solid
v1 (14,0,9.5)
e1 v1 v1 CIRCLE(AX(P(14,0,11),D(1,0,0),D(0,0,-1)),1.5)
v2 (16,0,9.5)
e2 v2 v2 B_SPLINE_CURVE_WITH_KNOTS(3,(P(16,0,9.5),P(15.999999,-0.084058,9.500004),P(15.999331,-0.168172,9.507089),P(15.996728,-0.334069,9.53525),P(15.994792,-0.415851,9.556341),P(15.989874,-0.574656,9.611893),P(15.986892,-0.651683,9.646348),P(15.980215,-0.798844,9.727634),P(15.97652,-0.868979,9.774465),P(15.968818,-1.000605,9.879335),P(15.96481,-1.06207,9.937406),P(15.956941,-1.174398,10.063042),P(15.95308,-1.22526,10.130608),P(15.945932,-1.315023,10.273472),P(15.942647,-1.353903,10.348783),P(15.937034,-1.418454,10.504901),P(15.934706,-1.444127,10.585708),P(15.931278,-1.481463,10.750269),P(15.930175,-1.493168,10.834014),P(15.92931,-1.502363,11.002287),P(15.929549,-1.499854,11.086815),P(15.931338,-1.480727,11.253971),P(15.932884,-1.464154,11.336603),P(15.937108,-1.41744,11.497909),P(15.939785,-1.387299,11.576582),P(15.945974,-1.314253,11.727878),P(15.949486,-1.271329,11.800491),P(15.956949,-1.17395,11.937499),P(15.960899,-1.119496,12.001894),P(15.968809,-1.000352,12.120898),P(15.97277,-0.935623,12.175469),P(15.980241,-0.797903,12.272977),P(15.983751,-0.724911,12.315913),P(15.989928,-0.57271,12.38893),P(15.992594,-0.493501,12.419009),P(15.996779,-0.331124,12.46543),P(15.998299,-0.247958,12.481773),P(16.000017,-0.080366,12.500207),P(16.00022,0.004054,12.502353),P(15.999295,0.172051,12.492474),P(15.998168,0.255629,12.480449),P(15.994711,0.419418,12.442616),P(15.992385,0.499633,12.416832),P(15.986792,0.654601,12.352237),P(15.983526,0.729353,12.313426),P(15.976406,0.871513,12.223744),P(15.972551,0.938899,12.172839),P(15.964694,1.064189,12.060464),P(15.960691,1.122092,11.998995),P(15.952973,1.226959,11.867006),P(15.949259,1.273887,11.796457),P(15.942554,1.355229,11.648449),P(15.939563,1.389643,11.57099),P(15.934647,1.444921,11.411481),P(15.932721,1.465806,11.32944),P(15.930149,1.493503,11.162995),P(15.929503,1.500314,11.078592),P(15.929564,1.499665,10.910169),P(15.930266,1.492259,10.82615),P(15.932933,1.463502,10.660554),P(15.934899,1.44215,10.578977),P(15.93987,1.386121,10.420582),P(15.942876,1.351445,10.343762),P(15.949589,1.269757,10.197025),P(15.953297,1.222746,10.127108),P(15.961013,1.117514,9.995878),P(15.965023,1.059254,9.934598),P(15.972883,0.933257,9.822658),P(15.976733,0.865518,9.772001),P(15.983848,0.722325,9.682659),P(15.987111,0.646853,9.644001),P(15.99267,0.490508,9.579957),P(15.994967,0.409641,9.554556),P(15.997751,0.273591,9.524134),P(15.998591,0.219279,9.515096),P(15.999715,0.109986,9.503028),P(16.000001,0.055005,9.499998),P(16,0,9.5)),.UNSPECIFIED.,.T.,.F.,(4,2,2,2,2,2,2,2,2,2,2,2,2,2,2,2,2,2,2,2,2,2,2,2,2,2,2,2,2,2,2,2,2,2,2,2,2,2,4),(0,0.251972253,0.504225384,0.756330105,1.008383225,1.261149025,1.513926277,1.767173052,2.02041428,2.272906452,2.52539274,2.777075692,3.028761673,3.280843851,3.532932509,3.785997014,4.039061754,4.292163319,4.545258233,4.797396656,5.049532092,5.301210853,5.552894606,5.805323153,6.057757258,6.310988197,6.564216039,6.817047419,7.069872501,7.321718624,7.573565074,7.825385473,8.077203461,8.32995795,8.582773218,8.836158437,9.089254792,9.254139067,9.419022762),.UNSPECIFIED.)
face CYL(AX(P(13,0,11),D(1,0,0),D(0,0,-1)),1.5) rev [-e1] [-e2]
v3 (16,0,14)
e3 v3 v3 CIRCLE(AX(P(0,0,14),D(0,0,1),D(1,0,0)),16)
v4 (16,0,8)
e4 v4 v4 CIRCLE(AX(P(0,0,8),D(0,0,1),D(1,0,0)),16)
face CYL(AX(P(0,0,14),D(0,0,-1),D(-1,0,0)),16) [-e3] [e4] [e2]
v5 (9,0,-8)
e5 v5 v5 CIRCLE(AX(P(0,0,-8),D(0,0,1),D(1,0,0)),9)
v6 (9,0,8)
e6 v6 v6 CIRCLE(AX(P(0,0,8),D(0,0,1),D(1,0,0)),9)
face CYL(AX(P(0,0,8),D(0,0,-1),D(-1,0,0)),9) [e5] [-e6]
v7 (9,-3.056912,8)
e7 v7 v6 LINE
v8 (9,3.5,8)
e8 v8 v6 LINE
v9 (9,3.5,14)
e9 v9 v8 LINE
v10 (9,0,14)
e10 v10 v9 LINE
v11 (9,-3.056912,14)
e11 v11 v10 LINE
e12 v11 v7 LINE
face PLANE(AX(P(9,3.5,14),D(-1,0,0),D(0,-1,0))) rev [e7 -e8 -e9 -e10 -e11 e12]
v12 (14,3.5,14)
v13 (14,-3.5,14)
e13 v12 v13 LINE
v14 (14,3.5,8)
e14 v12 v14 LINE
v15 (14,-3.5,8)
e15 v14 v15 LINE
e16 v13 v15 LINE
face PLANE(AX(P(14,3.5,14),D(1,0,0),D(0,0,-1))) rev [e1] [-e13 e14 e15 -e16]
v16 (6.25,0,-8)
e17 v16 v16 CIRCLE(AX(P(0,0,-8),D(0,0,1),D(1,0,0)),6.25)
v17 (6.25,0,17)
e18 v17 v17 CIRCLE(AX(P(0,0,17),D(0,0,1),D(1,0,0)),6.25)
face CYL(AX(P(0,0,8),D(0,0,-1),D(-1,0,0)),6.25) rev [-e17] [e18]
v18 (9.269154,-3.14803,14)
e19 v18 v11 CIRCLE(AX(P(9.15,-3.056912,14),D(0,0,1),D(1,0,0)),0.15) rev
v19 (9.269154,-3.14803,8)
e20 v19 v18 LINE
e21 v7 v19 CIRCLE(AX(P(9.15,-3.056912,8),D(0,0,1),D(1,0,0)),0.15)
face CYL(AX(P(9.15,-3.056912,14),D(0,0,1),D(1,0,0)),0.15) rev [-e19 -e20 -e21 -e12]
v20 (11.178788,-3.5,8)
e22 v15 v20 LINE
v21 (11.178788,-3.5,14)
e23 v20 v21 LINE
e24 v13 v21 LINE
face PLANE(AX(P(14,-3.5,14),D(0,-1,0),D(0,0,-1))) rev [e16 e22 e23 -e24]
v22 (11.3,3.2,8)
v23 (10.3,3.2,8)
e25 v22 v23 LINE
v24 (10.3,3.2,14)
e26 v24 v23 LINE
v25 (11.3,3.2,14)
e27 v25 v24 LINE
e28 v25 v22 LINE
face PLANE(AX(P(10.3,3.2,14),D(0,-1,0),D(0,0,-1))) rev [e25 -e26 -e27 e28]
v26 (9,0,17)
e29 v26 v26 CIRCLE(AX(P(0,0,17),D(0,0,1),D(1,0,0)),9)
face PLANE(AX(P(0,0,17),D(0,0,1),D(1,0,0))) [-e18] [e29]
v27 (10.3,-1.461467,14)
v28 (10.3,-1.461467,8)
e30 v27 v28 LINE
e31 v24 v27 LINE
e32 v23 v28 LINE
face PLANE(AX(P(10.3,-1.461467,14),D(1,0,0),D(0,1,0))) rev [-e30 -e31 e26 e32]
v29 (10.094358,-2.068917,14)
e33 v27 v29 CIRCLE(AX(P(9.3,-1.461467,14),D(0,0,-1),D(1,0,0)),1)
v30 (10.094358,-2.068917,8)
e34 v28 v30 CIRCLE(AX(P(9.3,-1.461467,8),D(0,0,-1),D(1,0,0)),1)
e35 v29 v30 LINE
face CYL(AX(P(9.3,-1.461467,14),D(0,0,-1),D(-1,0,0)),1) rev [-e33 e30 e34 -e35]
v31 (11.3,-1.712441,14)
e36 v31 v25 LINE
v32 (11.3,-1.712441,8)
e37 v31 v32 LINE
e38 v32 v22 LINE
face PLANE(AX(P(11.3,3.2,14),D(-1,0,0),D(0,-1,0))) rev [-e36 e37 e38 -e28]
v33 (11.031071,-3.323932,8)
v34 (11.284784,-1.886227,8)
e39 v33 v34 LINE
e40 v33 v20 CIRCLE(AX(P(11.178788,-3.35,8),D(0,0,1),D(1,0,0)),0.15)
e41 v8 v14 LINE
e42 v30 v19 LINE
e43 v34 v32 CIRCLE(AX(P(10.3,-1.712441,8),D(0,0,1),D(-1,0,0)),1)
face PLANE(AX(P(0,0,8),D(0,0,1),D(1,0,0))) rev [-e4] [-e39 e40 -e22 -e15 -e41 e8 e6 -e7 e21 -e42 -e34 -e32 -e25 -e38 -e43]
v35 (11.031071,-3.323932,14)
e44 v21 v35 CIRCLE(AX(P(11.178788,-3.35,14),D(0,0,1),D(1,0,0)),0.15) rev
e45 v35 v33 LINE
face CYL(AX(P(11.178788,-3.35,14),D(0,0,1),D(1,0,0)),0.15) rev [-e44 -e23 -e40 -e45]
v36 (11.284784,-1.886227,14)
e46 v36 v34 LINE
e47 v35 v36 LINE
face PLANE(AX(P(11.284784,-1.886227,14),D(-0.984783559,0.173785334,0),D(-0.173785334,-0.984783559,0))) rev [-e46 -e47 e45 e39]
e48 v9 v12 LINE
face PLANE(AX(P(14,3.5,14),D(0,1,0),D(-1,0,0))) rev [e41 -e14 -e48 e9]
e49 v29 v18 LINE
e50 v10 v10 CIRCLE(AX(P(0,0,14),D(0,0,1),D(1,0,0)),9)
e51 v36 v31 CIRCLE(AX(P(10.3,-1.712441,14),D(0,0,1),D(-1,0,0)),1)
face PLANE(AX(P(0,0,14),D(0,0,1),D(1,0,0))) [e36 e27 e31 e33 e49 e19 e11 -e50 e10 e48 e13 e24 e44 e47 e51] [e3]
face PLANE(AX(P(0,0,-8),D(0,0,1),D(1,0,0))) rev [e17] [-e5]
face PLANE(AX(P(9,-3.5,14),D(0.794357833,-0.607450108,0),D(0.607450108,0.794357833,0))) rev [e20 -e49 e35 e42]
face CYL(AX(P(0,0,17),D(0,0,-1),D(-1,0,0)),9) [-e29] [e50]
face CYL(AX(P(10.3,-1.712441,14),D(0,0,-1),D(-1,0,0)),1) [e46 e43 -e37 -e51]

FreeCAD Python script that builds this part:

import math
import FreeCAD as App
import Part
import Sketcher


def edges_at(feature, points):
    """Names of the edges that pass closest to the given points."""
    edges = feature.Shape.Edges
    near = lambda p: min(range(len(edges)), key=lambda i: edges[i].distToShape(Part.Vertex(*p))[0])
    return sorted({f"Edge{near(p) + 1}" for p in points})

doc = App.newDocument("Part")
params = doc.addObject("Spreadsheet::Sheet", "Params")
for row, (alias, value) in enumerate([
    ("sketch1_diameter", "18 mm"),
    ("sketch1_diameter2", "12.5 mm"),
    ("pad1_length", "16 mm"),
    ("sketch2_diameter", "32 mm"),
    ("sketch2_diameter2", "12.5 mm"),
    ("pad2_length", "6 mm"),
    ("sketch3_radius", "1 mm"),
    ("sketch3_width", "5 mm"),
    ("sketch3_width2", "3 mm"),
    ("sketch3_height", "7 mm"),
    ("pocket1_length", "6 mm"),
    ("sketch4_diameter", "3 mm"),
    ("pocket2_length", "4 mm"),
    ("sketch5_diameter", "18 mm"),
    ("sketch5_diameter2", "12.5 mm"),
    ("pad3_length", "3 mm"),
    ("fillet_radius", "0.15 mm"),
    ("fillet2_radius", "0.15 mm"),
], start=1):
    params.set(f"A{row}", alias)
    params.set(f"B{row}", "=" + value)
    params.setAlias(f"B{row}", alias)

body = doc.addObject("PartDesign::Body", "Body")

sketch1 = body.newObject("Sketcher::SketchObject", "Sketch")
sketch1.AttachmentSupport = (doc.getObject("XY_Plane"), [""])
sketch1.MapMode = "FlatFace"
sketch1.addGeometry([
    Part.Circle(App.Vector(0, 0, 0), App.Vector(0, 0, 1), 9),
    Part.Circle(App.Vector(0, 0, 0), App.Vector(0, 0, 1), 6.25),
], False)
sketch1.addConstraint([
    Sketcher.Constraint("Coincident", 0, 3, -1, 1),
    Sketcher.Constraint("Coincident", 1, 3, -1, 1),
    Sketcher.Constraint("Diameter", 0, 18.0),
    Sketcher.Constraint("Diameter", 1, 12.5),
])
sketch1.setExpression("Constraints[2]", "Params.sketch1_diameter")
sketch1.setExpression("Constraints[3]", "Params.sketch1_diameter2")
pad1 = body.newObject("PartDesign::Pad", "Pad")
pad1.Profile = sketch1
pad1.setExpression("Length", "Params.pad1_length")
pad1.Midplane = True

sketch2 = body.newObject("Sketcher::SketchObject", "Sketch001")
sketch2.AttachmentSupport = (doc.getObject("XY_Plane"), [""])
sketch2.MapMode = "FlatFace"
sketch2.AttachmentOffset = App.Placement(App.Vector(0, 0, 8), App.Rotation())
sketch2.addGeometry([
    Part.Circle(App.Vector(0, 0, 0), App.Vector(0, 0, 1), 16),
    Part.Circle(App.Vector(0, 0, 0), App.Vector(0, 0, 1), 6.25),
], False)
sketch2.addConstraint([
    Sketcher.Constraint("Coincident", 0, 3, -1, 1),
    Sketcher.Constraint("Coincident", 1, 3, -1, 1),
    Sketcher.Constraint("Diameter", 0, 32.0),
    Sketcher.Constraint("Diameter", 1, 12.5),
])
sketch2.setExpression("Constraints[2]", "Params.sketch2_diameter")
sketch2.setExpression("Constraints[3]", "Params.sketch2_diameter2")
pad2 = body.newObject("PartDesign::Pad", "Pad001")
pad2.Profile = sketch2
pad2.setExpression("Length", "Params.pad2_length")

sketch3 = body.newObject("Sketcher::SketchObject", "Sketch002")
sketch3.AttachmentSupport = (doc.getObject("XY_Plane"), [""])
sketch3.MapMode = "FlatFace"
sketch3.AttachmentOffset = App.Placement(App.Vector(0, 0, 8), App.Rotation())
sketch3.addGeometry([
    Part.LineSegment(App.Vector(10.094358, -2.068917, 0), App.Vector(9, -3.5, 0)),
    Part.LineSegment(App.Vector(9, -3.5, 0), App.Vector(9, 3.5, 0)),
    Part.LineSegment(App.Vector(9, 3.5, 0), App.Vector(14, 3.5, 0)),
    Part.LineSegment(App.Vector(14, 3.5, 0), App.Vector(14, -3.5, 0)),
    Part.LineSegment(App.Vector(14, -3.5, 0), App.Vector(11, -3.5, 0)),
    Part.LineSegment(App.Vector(11, -3.5, 0), App.Vector(11.284784, -1.886227, 0)),
    Part.ArcOfCircle(Part.Circle(App.Vector(10.3, -1.712441, 0), App.Vector(0, 0, 1), 1), math.radians(-10.007979), math.radians(-0.000001)),
    Part.LineSegment(App.Vector(11.3, -1.712441, 0), App.Vector(11.3, 3.2, 0)),
    Part.LineSegment(App.Vector(11.3, 3.2, 0), App.Vector(10.3, 3.2, 0)),
    Part.LineSegment(App.Vector(10.3, 3.2, 0), App.Vector(10.3, -1.461467, 0)),
    Part.ArcOfCircle(Part.Circle(App.Vector(9.3, -1.461467, 0), App.Vector(0, 0, 1), 1), math.radians(-37.405357), math.radians(0)),
], False)
sketch3.addConstraint([
    Sketcher.Constraint("Coincident", 0, 2, 1, 1),
    Sketcher.Constraint("Coincident", 1, 2, 2, 1),
    Sketcher.Constraint("Coincident", 2, 2, 3, 1),
    Sketcher.Constraint("Coincident", 3, 2, 4, 1),
    Sketcher.Constraint("Coincident", 4, 2, 5, 1),
    Sketcher.Constraint("Tangent", 5, 2, 6, 1),
    Sketcher.Constraint("Tangent", 6, 2, 7, 1),
    Sketcher.Constraint("Coincident", 7, 2, 8, 1),
    Sketcher.Constraint("Coincident", 8, 2, 9, 1),
    Sketcher.Constraint("Tangent", 9, 2, 10, 2),
    Sketcher.Constraint("Tangent", 10, 1, 0, 1),
    Sketcher.Constraint("Vertical", 1),
    Sketcher.Constraint("Horizontal", 2),
    Sketcher.Constraint("Vertical", 3),
    Sketcher.Constraint("Horizontal", 4),
    Sketcher.Constraint("Vertical", 7),
    Sketcher.Constraint("Horizontal", 8),
    Sketcher.Constraint("Vertical", 9),
    Sketcher.Constraint("Equal", 6, 10),
    Sketcher.Constraint("Horizontal", 0, 2, 3, 2),
    Sketcher.Constraint("Vertical", 6, 3, 8, 2),
    Sketcher.Constraint("Radius", 6, 1.0),
    Sketcher.Constraint("DistanceX", 2, 1, 2, 2, 5.0),
    Sketcher.Constraint("DistanceX", 4, 2, 4, 1, 3.0),
    Sketcher.Constraint("DistanceY", 1, 1, 1, 2, 7.0),
    Sketcher.Constraint("DistanceX", -1, 1, 0, 2, 9.0),
    Sketcher.Constraint("DistanceX", -1, 1, 6, 3, 10.3),
    Sketcher.Constraint("DistanceY", 0, 2, -1, 1, 3.5),
    Sketcher.Constraint("DistanceY", -1, 1, 7, 2, 3.2),
    Sketcher.Constraint("DistanceY", 7, 1, 7, 2, 4.912441),
    Sketcher.Constraint("Distance", 0, 1.80156),
])
sketch3.setExpression("Constraints[21]", "Params.sketch3_radius")
sketch3.setExpression("Constraints[22]", "Params.sketch3_width")
sketch3.setExpression("Constraints[23]", "Params.sketch3_width2")
sketch3.setExpression("Constraints[24]", "Params.sketch3_height")
pocket1 = body.newObject("PartDesign::Pocket", "Pocket")
pocket1.Profile = sketch3
pocket1.setExpression("Length", "Params.pocket1_length")
pocket1.Reversed = True

sketch4 = body.newObject("Sketcher::SketchObject", "Sketch003")
sketch4.AttachmentSupport = (doc.getObject("YZ_Plane"), [""])
sketch4.MapMode = "FlatFace"
sketch4.AttachmentOffset = App.Placement(App.Vector(0, 0, 17), App.Rotation())
sketch4.addGeometry(Part.Circle(App.Vector(0, 11, 0), App.Vector(0, 0, 1), 1.5), False)
sketch4.addConstraint([
    Sketcher.Constraint("PointOnObject", 0, 3, -2),
    Sketcher.Constraint("Diameter", 0, 3.0),
    Sketcher.Constraint("DistanceY", -1, 1, 0, 3, 11.0),
])
sketch4.setExpression("Constraints[1]", "Params.sketch4_diameter")
pocket2 = body.newObject("PartDesign::Pocket", "Pocket001")
pocket2.Profile = sketch4
pocket2.setExpression("Length", "Params.pocket2_length")

sketch5 = body.newObject("Sketcher::SketchObject", "Sketch004")
sketch5.AttachmentSupport = (doc.getObject("XY_Plane"), [""])
sketch5.MapMode = "FlatFace"
sketch5.AttachmentOffset = App.Placement(App.Vector(0, 0, 14), App.Rotation())
sketch5.addGeometry([
    Part.Circle(App.Vector(0, 0, 0), App.Vector(0, 0, 1), 9),
    Part.Circle(App.Vector(0, 0, 0), App.Vector(0, 0, 1), 6.25),
], False)
sketch5.addConstraint([
    Sketcher.Constraint("Coincident", 0, 3, -1, 1),
    Sketcher.Constraint("Coincident", 1, 3, -1, 1),
    Sketcher.Constraint("Diameter", 0, 18.0),
    Sketcher.Constraint("Diameter", 1, 12.5),
])
sketch5.setExpression("Constraints[2]", "Params.sketch5_diameter")
sketch5.setExpression("Constraints[3]", "Params.sketch5_diameter2")
pad3 = body.newObject("PartDesign::Pad", "Pad002")
pad3.Profile = sketch5
pad3.setExpression("Length", "Params.pad3_length")
doc.recompute()

fillet = body.newObject("PartDesign::Fillet", "Fillet")
fillet.Base = (pad3, edges_at(pad3, [(9, -3.5, 11)]))
fillet.setExpression("Radius", "Params.fillet_radius")
doc.recompute()

fillet2 = body.newObject("PartDesign::Fillet", "Fillet001")
fillet2.Base = (fillet, edges_at(fillet, [(11, -3.5, 11)]))
fillet2.setExpression("Radius", "Params.fillet2_radius")

doc.recompute()
